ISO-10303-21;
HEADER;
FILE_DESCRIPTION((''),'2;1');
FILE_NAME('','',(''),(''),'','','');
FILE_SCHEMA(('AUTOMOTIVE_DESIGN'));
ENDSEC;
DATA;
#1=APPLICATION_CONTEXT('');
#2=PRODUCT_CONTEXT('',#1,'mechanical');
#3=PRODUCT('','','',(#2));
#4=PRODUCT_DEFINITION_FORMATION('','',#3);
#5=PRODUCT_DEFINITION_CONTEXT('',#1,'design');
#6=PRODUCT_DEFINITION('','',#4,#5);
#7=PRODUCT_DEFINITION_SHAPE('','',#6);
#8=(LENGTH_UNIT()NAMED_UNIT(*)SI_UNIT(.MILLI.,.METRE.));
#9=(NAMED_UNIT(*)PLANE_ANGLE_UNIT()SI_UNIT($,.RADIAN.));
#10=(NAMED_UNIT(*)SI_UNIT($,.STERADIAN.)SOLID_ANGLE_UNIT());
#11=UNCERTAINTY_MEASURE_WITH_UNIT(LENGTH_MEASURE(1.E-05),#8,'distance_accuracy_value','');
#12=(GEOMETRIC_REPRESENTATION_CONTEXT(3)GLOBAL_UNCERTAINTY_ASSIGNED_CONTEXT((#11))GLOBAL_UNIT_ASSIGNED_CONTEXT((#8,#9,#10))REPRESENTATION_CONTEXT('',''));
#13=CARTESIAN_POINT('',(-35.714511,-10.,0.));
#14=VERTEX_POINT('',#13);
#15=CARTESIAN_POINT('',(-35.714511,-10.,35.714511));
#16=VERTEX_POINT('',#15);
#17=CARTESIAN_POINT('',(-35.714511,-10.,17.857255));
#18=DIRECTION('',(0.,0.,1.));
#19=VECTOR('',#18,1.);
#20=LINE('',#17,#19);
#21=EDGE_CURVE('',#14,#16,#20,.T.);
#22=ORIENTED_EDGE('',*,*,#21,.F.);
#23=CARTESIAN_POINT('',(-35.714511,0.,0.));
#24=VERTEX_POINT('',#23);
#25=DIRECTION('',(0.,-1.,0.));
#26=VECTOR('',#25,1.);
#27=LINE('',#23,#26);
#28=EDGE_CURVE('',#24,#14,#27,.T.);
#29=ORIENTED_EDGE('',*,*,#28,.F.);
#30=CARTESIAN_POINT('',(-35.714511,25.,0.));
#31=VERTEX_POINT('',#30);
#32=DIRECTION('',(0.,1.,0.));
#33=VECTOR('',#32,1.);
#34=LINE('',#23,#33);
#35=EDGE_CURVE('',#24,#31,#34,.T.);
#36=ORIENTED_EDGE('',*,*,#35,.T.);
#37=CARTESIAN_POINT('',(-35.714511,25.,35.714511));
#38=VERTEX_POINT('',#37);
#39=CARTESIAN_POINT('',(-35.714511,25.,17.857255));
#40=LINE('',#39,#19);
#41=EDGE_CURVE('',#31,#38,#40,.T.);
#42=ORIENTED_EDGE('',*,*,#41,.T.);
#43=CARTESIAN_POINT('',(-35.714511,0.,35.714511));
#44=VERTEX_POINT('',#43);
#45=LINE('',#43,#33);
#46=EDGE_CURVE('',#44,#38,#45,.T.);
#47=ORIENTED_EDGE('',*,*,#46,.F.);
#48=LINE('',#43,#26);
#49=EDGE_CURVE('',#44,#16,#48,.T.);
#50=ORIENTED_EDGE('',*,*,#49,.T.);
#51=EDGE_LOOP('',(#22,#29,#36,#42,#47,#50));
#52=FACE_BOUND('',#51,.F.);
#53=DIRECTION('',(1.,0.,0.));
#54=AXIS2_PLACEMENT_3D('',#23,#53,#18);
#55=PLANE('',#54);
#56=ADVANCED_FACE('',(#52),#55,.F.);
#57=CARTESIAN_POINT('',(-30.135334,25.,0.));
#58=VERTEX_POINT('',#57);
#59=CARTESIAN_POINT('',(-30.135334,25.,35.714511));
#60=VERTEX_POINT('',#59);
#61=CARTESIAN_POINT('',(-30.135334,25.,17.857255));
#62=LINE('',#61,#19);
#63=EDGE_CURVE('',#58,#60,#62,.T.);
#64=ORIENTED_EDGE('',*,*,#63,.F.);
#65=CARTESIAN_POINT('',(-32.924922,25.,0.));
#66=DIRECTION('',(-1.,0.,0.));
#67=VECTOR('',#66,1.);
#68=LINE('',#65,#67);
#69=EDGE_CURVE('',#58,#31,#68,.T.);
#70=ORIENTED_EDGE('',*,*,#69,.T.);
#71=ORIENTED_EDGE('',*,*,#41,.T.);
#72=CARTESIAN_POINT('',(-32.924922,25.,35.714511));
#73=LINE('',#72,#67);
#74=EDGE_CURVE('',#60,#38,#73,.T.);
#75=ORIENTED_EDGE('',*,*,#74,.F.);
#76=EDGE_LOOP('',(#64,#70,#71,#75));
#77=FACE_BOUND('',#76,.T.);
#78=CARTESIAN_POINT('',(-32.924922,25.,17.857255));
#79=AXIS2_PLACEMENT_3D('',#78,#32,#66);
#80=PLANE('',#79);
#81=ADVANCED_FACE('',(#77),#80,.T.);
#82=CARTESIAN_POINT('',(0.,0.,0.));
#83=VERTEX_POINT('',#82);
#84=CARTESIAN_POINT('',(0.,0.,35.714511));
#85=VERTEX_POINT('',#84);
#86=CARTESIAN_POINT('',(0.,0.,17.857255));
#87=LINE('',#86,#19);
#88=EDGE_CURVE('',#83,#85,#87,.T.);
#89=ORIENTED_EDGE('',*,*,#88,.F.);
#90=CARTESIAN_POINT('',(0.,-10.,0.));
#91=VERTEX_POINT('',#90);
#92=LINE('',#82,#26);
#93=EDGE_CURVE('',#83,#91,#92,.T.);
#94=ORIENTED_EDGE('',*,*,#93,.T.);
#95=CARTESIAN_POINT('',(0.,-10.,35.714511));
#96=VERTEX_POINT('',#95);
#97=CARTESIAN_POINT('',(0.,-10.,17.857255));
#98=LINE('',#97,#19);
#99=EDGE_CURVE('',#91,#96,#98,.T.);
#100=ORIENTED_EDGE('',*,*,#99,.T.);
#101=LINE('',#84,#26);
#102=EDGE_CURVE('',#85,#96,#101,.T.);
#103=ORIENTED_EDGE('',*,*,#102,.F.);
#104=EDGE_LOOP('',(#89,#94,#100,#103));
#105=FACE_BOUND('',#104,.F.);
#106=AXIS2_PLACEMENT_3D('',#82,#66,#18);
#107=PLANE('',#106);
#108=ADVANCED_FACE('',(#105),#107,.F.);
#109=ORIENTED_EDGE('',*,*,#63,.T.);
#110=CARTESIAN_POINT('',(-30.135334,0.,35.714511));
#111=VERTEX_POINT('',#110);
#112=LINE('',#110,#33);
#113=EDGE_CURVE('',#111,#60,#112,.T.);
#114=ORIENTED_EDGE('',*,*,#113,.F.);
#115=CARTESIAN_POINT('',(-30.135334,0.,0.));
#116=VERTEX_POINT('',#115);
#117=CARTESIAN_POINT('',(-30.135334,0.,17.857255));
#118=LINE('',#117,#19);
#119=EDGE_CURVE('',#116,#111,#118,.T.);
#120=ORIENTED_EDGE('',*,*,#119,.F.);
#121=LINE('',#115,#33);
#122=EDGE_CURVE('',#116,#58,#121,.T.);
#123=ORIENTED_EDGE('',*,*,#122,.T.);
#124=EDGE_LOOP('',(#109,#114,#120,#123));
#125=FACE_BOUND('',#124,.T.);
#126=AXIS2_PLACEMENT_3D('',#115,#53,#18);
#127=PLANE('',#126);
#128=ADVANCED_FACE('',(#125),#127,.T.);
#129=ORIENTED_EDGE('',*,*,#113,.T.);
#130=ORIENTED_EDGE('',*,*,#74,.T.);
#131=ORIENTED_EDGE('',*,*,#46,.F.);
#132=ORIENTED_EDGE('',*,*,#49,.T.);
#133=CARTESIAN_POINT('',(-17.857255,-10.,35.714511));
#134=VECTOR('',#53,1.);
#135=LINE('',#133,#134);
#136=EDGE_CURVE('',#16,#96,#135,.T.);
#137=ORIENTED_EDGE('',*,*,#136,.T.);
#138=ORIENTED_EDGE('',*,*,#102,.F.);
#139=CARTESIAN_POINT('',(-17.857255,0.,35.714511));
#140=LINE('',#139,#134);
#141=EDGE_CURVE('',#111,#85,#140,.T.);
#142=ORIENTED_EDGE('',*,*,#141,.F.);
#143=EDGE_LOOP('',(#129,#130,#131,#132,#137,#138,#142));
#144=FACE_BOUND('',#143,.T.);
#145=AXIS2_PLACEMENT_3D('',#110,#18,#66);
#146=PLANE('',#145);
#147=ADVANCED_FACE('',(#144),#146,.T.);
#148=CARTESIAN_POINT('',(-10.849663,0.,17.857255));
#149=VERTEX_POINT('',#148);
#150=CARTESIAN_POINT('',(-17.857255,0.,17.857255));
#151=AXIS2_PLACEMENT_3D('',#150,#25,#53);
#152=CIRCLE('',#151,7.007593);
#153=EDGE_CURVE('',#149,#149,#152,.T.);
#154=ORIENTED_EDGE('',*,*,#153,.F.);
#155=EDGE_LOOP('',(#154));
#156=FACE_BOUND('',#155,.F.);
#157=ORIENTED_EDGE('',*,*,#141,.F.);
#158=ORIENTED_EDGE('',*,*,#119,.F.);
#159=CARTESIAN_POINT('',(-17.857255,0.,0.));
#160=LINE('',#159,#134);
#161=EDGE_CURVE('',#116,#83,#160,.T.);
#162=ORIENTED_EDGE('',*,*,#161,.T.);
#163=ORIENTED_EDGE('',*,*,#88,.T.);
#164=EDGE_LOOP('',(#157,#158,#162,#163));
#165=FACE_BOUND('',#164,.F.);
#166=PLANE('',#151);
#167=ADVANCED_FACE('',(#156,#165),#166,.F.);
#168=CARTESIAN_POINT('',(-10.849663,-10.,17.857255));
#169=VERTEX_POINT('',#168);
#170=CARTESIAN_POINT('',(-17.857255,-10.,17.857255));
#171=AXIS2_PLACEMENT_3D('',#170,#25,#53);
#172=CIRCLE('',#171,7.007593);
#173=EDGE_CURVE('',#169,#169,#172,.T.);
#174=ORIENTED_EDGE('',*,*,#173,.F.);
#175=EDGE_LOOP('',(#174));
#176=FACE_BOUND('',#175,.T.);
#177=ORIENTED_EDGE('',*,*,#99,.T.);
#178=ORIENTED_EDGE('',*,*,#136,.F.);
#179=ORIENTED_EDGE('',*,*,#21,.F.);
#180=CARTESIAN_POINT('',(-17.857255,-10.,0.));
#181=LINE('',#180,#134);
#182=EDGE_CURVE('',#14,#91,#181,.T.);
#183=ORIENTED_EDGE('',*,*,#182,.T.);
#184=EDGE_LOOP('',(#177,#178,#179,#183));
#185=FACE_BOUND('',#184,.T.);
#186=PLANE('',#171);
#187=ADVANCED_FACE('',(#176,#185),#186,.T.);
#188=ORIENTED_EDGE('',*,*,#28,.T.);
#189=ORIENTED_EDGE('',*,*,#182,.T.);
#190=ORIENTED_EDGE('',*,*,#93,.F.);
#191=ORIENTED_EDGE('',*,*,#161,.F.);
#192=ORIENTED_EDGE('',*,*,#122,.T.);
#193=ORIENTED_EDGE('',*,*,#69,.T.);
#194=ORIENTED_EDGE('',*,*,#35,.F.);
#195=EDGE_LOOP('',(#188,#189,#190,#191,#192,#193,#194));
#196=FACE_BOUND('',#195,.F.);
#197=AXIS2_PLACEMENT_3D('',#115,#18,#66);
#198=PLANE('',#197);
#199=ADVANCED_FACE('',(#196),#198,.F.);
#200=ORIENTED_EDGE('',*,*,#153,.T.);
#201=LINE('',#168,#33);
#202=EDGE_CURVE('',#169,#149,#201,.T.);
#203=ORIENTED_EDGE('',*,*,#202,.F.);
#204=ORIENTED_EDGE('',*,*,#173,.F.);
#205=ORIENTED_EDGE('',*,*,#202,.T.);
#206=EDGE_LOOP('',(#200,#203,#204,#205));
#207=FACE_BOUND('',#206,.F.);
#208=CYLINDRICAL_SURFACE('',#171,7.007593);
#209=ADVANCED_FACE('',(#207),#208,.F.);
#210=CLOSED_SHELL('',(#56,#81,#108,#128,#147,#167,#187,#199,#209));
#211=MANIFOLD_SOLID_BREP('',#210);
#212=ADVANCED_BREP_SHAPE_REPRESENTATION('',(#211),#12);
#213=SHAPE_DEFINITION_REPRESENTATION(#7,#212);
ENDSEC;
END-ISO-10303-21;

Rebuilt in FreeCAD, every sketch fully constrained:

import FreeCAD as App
import Part
import Sketcher

doc = App.newDocument("Part")
body = doc.addObject("PartDesign::Body", "Body")

# Sketch on XZ plane
sketch1 = body.newObject("Sketcher::SketchObject", "Sketch")
sketch1.AttachmentSupport = (doc.getObject("XZ_Plane"), [""])
sketch1.MapMode = "FlatFace"
sketch1.addGeometry([
    Part.LineSegment(App.Vector(-36, 36, 0), App.Vector(-36, 0, 0)),
    Part.LineSegment(App.Vector(-36, 0, 0), App.Vector(0, 0, 0)),
    Part.LineSegment(App.Vector(0, 0, 0), App.Vector(0, 36, 0)),
    Part.LineSegment(App.Vector(0, 36, 0), App.Vector(-36, 36, 0)),
], False)
sketch1.addConstraint([
    Sketcher.Constraint("Coincident", 0, 2, 1, 1),
    Sketcher.Constraint("Coincident", 1, 2, 2, 1),
    Sketcher.Constraint("Coincident", 2, 2, 3, 1),
    Sketcher.Constraint("Coincident", 3, 2, 0, 1),
    Sketcher.Constraint("Vertical", 0),
    Sketcher.Constraint("Horizontal", 1),
    Sketcher.Constraint("Vertical", 2),
    Sketcher.Constraint("Horizontal", 3),
    Sketcher.Constraint("Coincident", 1, 2, -1, 1),
    Sketcher.Constraint("Equal", 3, 0),
    Sketcher.Constraint("DistanceX", 1, 1, 1, 2, 35.714511),
])
pad1 = body.newObject("PartDesign::Pad", "Pad")
pad1.Profile = sketch1
pad1.Length = 10

# Sketch on XZ plane
sketch2 = body.newObject("Sketcher::SketchObject", "Sketch001")
sketch2.AttachmentSupport = (doc.getObject("XZ_Plane"), [""])
sketch2.MapMode = "FlatFace"
sketch2.AttachmentOffset = App.Placement(App.Vector(0, 0, 10), App.Rotation())
sketch2.addGeometry(Part.Circle(App.Vector(-18, 18, 0), App.Vector(0, 0, 1), 7), False)
sketch2.addConstraint([
    Sketcher.Constraint("Diameter", 0, 14.015186),
    Sketcher.Constraint("DistanceX", 0, 3, -1, 1, 17.857255),
    Sketcher.Constraint("DistanceY", -1, 1, 0, 3, 17.857255),
])
pocket1 = body.newObject("PartDesign::Pocket", "Pocket")
pocket1.Profile = sketch2
pocket1.Length = 25

# Sketch on XZ plane
sketch3 = body.newObject("Sketcher::SketchObject", "Sketch002")
sketch3.AttachmentSupport = (doc.getObject("XZ_Plane"), [""])
sketch3.MapMode = "FlatFace"
sketch3.addGeometry([
    Part.LineSegment(App.Vector(-30, 36, 0), App.Vector(-30, 0, 0)),
    Part.LineSegment(App.Vector(-30, 0, 0), App.Vector(-36, 0, 0)),
    Part.LineSegment(App.Vector(-36, 0, 0), App.Vector(-36, 36, 0)),
    Part.LineSegment(App.Vector(-36, 36, 0), App.Vector(-30, 36, 0)),
], False)
sketch3.addConstraint([
    Sketcher.Constraint("Coincident", 0, 2, 1, 1),
    Sketcher.Constraint("Coincident", 1, 2, 2, 1),
    Sketcher.Constraint("Coincident", 2, 2, 3, 1),
    Sketcher.Constraint("Coincident", 3, 2, 0, 1),
    Sketcher.Constraint("Vertical", 0),
    Sketcher.Constraint("Horizontal", 1),
    Sketcher.Constraint("Vertical", 2),
    Sketcher.Constraint("Horizontal", 3),
    Sketcher.Constraint("PointOnObject", 0, 2, -1),
    Sketcher.Constraint("DistanceY", 0, 2, 0, 1, 35.714511),
    Sketcher.Constraint("DistanceX", 1, 2, 1, 1, 5.579177),
    Sketcher.Constraint("DistanceX", 1, 2, -1, 1, 35.714511),
])
pad2 = body.newObject("PartDesign::Pad", "Pad001")
pad2.Profile = sketch3
pad2.Length = 25
pad2.Reversed = True

doc.recompute()
